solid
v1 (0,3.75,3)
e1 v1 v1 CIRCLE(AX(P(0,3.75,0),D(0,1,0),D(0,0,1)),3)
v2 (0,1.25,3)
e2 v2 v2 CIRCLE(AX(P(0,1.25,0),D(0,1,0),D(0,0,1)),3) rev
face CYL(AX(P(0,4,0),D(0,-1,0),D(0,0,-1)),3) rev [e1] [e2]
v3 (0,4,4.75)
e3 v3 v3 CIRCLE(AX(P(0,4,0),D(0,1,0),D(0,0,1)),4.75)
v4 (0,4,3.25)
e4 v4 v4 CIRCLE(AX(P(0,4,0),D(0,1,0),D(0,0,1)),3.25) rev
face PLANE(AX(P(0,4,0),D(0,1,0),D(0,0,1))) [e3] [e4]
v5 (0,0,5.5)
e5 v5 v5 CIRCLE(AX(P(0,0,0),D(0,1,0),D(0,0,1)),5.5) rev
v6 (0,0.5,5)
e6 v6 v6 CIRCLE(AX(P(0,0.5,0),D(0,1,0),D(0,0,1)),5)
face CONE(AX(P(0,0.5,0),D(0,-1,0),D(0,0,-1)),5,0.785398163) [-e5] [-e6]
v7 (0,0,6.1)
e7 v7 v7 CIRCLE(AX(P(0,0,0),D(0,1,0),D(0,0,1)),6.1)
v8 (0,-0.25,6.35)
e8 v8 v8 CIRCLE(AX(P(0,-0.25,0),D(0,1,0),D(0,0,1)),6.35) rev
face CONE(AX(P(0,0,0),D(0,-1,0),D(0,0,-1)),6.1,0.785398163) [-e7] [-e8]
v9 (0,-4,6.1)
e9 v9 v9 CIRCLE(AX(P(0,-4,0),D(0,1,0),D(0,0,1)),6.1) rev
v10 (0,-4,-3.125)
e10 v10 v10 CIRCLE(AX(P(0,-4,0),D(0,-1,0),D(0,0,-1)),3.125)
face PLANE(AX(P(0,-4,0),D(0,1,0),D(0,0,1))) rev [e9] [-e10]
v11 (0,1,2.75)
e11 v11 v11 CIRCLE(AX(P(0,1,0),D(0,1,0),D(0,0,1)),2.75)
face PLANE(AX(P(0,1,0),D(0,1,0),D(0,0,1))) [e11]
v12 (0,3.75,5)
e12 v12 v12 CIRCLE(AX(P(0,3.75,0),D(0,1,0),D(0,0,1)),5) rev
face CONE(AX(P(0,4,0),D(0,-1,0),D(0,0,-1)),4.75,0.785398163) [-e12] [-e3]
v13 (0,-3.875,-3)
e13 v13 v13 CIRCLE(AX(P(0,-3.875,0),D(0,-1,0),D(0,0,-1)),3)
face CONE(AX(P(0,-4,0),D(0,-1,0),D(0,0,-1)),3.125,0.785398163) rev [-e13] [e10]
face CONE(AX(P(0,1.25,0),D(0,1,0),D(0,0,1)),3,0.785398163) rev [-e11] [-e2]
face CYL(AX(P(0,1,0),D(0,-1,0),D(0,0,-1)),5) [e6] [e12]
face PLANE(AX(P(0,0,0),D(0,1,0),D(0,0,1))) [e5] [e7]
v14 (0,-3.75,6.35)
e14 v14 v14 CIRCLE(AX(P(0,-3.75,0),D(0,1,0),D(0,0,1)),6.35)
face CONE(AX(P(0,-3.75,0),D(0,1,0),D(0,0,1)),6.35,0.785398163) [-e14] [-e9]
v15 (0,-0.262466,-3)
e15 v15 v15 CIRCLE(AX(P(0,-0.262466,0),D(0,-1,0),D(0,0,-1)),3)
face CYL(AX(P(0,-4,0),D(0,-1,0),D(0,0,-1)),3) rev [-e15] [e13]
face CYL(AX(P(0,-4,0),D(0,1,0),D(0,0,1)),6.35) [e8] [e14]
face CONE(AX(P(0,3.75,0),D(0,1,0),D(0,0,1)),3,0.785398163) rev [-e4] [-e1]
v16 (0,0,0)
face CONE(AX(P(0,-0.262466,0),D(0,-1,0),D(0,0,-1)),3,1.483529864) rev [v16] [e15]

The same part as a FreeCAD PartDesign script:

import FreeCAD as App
import Part
import Sketcher
from FreeCAD import Vector


def edges_at(feature, points):
    """Names of the edges that pass closest to the given points."""
    edges = feature.Shape.Edges
    near = lambda p: min(range(len(edges)), key=lambda i: edges[i].distToShape(Part.Vertex(*p))[0])
    return sorted({f"Edge{near(p) + 1}" for p in points})

doc = App.newDocument("Part")
body = doc.addObject("PartDesign::Body", "Body")

# Sketch on XZ plane
sketch1 = body.newObject("Sketcher::SketchObject", "Sketch")
sketch1.AttachmentSupport = (doc.getObject("XZ_Plane"), [""])
sketch1.MapMode = "FlatFace"
sketch1.addGeometry(Part.Circle(Vector(0, 0, 0), Vector(0, 0, 1), 5), False)
sketch1.addConstraint([
    Sketcher.Constraint("Coincident", 0, 3, -1, 1),
    Sketcher.Constraint("Diameter", 0, 10.0),
])
pad1 = body.newObject("PartDesign::Pad", "Pad")
pad1.Profile = sketch1
pad1.Length = 1
pad1.Reversed = True

# Sketch on XZ plane
sketch2 = body.newObject("Sketcher::SketchObject", "Sketch001")
sketch2.AttachmentSupport = (doc.getObject("XZ_Plane"), [""])
sketch2.MapMode = "FlatFace"
sketch2.addGeometry([
    Part.Circle(Vector(0, 0, 0), Vector(0, 0, 1), 5),
    Part.Circle(Vector(0, 0, 0), Vector(0, 0, 1), 3),
], False)
sketch2.addConstraint([
    Sketcher.Constraint("Coincident", 0, 3, -1, 1),
    Sketcher.Constraint("Coincident", 1, 3, -1, 1),
    Sketcher.Constraint("Diameter", 0, 10.0),
    Sketcher.Constraint("Diameter", 1, 6.0),
])
pad2 = body.newObject("PartDesign::Pad", "Pad001")
pad2.Profile = sketch2
pad2.Length = 4
pad2.Reversed = True
doc.recompute()

chamfer = body.newObject("PartDesign::Chamfer", "Chamfer")
chamfer.Base = (pad2, edges_at(pad2, [(0, 1, -3), (0, 4, -5), (0, 4, -3)]))
chamfer.Size = 0.25

# Sketch on XZ plane
sketch3 = body.newObject("Sketcher::SketchObject", "Sketch002")
sketch3.AttachmentSupport = (doc.getObject("XZ_Plane"), [""])
sketch3.MapMode = "FlatFace"
sketch3.addGeometry(Part.Circle(Vector(0, 0, 0), Vector(0, 0, 1), 6), False)
sketch3.addConstraint([
    Sketcher.Constraint("Coincident", 0, 3, -1, 1),
    Sketcher.Constraint("Diameter", 0, 12.7),
])
pad3 = body.newObject("PartDesign::Pad", "Pad002")
pad3.Profile = sketch3
pad3.Length = 4

# Sketch on XZ plane
sketch4 = body.newObject("Sketcher::SketchObject", "Sketch003")
sketch4.AttachmentSupport = (doc.getObject("XZ_Plane"), [""])
sketch4.MapMode = "FlatFace"
sketch4.AttachmentOffset = App.Placement(Vector(0, 0, 4), App.Rotation())
sketch4.addGeometry(Part.Circle(Vector(0, 0, 0), Vector(0, 0, 1), 3), False)
sketch4.addConstraint([
    Sketcher.Constraint("Coincident", 0, 3, -1, 1),
    Sketcher.Constraint("Diameter", 0, 6.0),
])
doc.recompute()
hole = body.newObject("PartDesign::Hole", "Hole")
hole.Profile = sketch4
hole.ThreadType = "None"
hole.Diameter = 6
hole.DepthType = "Dimension"
hole.Depth = 3.737534
hole.DrillPoint = "Angled"
hole.DrillPointAngle = 170
hole.HoleCutType = "Countersink"
hole.HoleCutDiameter = 6.25
hole.HoleCutCountersinkAngle = 90
doc.recompute()

chamfer2 = body.newObject("PartDesign::Chamfer", "Chamfer001")
chamfer2.Base = (hole, edges_at(hole, [(0, -4, -6.35), (0, 0, -6.35)]))
chamfer2.Size = 0.25
doc.recompute()

chamfer3 = body.newObject("PartDesign::Chamfer", "Chamfer002")
chamfer3.Base = (chamfer2, edges_at(chamfer2, [(0, 0, -5)]))
chamfer3.Size = 0.5

doc.recompute()
